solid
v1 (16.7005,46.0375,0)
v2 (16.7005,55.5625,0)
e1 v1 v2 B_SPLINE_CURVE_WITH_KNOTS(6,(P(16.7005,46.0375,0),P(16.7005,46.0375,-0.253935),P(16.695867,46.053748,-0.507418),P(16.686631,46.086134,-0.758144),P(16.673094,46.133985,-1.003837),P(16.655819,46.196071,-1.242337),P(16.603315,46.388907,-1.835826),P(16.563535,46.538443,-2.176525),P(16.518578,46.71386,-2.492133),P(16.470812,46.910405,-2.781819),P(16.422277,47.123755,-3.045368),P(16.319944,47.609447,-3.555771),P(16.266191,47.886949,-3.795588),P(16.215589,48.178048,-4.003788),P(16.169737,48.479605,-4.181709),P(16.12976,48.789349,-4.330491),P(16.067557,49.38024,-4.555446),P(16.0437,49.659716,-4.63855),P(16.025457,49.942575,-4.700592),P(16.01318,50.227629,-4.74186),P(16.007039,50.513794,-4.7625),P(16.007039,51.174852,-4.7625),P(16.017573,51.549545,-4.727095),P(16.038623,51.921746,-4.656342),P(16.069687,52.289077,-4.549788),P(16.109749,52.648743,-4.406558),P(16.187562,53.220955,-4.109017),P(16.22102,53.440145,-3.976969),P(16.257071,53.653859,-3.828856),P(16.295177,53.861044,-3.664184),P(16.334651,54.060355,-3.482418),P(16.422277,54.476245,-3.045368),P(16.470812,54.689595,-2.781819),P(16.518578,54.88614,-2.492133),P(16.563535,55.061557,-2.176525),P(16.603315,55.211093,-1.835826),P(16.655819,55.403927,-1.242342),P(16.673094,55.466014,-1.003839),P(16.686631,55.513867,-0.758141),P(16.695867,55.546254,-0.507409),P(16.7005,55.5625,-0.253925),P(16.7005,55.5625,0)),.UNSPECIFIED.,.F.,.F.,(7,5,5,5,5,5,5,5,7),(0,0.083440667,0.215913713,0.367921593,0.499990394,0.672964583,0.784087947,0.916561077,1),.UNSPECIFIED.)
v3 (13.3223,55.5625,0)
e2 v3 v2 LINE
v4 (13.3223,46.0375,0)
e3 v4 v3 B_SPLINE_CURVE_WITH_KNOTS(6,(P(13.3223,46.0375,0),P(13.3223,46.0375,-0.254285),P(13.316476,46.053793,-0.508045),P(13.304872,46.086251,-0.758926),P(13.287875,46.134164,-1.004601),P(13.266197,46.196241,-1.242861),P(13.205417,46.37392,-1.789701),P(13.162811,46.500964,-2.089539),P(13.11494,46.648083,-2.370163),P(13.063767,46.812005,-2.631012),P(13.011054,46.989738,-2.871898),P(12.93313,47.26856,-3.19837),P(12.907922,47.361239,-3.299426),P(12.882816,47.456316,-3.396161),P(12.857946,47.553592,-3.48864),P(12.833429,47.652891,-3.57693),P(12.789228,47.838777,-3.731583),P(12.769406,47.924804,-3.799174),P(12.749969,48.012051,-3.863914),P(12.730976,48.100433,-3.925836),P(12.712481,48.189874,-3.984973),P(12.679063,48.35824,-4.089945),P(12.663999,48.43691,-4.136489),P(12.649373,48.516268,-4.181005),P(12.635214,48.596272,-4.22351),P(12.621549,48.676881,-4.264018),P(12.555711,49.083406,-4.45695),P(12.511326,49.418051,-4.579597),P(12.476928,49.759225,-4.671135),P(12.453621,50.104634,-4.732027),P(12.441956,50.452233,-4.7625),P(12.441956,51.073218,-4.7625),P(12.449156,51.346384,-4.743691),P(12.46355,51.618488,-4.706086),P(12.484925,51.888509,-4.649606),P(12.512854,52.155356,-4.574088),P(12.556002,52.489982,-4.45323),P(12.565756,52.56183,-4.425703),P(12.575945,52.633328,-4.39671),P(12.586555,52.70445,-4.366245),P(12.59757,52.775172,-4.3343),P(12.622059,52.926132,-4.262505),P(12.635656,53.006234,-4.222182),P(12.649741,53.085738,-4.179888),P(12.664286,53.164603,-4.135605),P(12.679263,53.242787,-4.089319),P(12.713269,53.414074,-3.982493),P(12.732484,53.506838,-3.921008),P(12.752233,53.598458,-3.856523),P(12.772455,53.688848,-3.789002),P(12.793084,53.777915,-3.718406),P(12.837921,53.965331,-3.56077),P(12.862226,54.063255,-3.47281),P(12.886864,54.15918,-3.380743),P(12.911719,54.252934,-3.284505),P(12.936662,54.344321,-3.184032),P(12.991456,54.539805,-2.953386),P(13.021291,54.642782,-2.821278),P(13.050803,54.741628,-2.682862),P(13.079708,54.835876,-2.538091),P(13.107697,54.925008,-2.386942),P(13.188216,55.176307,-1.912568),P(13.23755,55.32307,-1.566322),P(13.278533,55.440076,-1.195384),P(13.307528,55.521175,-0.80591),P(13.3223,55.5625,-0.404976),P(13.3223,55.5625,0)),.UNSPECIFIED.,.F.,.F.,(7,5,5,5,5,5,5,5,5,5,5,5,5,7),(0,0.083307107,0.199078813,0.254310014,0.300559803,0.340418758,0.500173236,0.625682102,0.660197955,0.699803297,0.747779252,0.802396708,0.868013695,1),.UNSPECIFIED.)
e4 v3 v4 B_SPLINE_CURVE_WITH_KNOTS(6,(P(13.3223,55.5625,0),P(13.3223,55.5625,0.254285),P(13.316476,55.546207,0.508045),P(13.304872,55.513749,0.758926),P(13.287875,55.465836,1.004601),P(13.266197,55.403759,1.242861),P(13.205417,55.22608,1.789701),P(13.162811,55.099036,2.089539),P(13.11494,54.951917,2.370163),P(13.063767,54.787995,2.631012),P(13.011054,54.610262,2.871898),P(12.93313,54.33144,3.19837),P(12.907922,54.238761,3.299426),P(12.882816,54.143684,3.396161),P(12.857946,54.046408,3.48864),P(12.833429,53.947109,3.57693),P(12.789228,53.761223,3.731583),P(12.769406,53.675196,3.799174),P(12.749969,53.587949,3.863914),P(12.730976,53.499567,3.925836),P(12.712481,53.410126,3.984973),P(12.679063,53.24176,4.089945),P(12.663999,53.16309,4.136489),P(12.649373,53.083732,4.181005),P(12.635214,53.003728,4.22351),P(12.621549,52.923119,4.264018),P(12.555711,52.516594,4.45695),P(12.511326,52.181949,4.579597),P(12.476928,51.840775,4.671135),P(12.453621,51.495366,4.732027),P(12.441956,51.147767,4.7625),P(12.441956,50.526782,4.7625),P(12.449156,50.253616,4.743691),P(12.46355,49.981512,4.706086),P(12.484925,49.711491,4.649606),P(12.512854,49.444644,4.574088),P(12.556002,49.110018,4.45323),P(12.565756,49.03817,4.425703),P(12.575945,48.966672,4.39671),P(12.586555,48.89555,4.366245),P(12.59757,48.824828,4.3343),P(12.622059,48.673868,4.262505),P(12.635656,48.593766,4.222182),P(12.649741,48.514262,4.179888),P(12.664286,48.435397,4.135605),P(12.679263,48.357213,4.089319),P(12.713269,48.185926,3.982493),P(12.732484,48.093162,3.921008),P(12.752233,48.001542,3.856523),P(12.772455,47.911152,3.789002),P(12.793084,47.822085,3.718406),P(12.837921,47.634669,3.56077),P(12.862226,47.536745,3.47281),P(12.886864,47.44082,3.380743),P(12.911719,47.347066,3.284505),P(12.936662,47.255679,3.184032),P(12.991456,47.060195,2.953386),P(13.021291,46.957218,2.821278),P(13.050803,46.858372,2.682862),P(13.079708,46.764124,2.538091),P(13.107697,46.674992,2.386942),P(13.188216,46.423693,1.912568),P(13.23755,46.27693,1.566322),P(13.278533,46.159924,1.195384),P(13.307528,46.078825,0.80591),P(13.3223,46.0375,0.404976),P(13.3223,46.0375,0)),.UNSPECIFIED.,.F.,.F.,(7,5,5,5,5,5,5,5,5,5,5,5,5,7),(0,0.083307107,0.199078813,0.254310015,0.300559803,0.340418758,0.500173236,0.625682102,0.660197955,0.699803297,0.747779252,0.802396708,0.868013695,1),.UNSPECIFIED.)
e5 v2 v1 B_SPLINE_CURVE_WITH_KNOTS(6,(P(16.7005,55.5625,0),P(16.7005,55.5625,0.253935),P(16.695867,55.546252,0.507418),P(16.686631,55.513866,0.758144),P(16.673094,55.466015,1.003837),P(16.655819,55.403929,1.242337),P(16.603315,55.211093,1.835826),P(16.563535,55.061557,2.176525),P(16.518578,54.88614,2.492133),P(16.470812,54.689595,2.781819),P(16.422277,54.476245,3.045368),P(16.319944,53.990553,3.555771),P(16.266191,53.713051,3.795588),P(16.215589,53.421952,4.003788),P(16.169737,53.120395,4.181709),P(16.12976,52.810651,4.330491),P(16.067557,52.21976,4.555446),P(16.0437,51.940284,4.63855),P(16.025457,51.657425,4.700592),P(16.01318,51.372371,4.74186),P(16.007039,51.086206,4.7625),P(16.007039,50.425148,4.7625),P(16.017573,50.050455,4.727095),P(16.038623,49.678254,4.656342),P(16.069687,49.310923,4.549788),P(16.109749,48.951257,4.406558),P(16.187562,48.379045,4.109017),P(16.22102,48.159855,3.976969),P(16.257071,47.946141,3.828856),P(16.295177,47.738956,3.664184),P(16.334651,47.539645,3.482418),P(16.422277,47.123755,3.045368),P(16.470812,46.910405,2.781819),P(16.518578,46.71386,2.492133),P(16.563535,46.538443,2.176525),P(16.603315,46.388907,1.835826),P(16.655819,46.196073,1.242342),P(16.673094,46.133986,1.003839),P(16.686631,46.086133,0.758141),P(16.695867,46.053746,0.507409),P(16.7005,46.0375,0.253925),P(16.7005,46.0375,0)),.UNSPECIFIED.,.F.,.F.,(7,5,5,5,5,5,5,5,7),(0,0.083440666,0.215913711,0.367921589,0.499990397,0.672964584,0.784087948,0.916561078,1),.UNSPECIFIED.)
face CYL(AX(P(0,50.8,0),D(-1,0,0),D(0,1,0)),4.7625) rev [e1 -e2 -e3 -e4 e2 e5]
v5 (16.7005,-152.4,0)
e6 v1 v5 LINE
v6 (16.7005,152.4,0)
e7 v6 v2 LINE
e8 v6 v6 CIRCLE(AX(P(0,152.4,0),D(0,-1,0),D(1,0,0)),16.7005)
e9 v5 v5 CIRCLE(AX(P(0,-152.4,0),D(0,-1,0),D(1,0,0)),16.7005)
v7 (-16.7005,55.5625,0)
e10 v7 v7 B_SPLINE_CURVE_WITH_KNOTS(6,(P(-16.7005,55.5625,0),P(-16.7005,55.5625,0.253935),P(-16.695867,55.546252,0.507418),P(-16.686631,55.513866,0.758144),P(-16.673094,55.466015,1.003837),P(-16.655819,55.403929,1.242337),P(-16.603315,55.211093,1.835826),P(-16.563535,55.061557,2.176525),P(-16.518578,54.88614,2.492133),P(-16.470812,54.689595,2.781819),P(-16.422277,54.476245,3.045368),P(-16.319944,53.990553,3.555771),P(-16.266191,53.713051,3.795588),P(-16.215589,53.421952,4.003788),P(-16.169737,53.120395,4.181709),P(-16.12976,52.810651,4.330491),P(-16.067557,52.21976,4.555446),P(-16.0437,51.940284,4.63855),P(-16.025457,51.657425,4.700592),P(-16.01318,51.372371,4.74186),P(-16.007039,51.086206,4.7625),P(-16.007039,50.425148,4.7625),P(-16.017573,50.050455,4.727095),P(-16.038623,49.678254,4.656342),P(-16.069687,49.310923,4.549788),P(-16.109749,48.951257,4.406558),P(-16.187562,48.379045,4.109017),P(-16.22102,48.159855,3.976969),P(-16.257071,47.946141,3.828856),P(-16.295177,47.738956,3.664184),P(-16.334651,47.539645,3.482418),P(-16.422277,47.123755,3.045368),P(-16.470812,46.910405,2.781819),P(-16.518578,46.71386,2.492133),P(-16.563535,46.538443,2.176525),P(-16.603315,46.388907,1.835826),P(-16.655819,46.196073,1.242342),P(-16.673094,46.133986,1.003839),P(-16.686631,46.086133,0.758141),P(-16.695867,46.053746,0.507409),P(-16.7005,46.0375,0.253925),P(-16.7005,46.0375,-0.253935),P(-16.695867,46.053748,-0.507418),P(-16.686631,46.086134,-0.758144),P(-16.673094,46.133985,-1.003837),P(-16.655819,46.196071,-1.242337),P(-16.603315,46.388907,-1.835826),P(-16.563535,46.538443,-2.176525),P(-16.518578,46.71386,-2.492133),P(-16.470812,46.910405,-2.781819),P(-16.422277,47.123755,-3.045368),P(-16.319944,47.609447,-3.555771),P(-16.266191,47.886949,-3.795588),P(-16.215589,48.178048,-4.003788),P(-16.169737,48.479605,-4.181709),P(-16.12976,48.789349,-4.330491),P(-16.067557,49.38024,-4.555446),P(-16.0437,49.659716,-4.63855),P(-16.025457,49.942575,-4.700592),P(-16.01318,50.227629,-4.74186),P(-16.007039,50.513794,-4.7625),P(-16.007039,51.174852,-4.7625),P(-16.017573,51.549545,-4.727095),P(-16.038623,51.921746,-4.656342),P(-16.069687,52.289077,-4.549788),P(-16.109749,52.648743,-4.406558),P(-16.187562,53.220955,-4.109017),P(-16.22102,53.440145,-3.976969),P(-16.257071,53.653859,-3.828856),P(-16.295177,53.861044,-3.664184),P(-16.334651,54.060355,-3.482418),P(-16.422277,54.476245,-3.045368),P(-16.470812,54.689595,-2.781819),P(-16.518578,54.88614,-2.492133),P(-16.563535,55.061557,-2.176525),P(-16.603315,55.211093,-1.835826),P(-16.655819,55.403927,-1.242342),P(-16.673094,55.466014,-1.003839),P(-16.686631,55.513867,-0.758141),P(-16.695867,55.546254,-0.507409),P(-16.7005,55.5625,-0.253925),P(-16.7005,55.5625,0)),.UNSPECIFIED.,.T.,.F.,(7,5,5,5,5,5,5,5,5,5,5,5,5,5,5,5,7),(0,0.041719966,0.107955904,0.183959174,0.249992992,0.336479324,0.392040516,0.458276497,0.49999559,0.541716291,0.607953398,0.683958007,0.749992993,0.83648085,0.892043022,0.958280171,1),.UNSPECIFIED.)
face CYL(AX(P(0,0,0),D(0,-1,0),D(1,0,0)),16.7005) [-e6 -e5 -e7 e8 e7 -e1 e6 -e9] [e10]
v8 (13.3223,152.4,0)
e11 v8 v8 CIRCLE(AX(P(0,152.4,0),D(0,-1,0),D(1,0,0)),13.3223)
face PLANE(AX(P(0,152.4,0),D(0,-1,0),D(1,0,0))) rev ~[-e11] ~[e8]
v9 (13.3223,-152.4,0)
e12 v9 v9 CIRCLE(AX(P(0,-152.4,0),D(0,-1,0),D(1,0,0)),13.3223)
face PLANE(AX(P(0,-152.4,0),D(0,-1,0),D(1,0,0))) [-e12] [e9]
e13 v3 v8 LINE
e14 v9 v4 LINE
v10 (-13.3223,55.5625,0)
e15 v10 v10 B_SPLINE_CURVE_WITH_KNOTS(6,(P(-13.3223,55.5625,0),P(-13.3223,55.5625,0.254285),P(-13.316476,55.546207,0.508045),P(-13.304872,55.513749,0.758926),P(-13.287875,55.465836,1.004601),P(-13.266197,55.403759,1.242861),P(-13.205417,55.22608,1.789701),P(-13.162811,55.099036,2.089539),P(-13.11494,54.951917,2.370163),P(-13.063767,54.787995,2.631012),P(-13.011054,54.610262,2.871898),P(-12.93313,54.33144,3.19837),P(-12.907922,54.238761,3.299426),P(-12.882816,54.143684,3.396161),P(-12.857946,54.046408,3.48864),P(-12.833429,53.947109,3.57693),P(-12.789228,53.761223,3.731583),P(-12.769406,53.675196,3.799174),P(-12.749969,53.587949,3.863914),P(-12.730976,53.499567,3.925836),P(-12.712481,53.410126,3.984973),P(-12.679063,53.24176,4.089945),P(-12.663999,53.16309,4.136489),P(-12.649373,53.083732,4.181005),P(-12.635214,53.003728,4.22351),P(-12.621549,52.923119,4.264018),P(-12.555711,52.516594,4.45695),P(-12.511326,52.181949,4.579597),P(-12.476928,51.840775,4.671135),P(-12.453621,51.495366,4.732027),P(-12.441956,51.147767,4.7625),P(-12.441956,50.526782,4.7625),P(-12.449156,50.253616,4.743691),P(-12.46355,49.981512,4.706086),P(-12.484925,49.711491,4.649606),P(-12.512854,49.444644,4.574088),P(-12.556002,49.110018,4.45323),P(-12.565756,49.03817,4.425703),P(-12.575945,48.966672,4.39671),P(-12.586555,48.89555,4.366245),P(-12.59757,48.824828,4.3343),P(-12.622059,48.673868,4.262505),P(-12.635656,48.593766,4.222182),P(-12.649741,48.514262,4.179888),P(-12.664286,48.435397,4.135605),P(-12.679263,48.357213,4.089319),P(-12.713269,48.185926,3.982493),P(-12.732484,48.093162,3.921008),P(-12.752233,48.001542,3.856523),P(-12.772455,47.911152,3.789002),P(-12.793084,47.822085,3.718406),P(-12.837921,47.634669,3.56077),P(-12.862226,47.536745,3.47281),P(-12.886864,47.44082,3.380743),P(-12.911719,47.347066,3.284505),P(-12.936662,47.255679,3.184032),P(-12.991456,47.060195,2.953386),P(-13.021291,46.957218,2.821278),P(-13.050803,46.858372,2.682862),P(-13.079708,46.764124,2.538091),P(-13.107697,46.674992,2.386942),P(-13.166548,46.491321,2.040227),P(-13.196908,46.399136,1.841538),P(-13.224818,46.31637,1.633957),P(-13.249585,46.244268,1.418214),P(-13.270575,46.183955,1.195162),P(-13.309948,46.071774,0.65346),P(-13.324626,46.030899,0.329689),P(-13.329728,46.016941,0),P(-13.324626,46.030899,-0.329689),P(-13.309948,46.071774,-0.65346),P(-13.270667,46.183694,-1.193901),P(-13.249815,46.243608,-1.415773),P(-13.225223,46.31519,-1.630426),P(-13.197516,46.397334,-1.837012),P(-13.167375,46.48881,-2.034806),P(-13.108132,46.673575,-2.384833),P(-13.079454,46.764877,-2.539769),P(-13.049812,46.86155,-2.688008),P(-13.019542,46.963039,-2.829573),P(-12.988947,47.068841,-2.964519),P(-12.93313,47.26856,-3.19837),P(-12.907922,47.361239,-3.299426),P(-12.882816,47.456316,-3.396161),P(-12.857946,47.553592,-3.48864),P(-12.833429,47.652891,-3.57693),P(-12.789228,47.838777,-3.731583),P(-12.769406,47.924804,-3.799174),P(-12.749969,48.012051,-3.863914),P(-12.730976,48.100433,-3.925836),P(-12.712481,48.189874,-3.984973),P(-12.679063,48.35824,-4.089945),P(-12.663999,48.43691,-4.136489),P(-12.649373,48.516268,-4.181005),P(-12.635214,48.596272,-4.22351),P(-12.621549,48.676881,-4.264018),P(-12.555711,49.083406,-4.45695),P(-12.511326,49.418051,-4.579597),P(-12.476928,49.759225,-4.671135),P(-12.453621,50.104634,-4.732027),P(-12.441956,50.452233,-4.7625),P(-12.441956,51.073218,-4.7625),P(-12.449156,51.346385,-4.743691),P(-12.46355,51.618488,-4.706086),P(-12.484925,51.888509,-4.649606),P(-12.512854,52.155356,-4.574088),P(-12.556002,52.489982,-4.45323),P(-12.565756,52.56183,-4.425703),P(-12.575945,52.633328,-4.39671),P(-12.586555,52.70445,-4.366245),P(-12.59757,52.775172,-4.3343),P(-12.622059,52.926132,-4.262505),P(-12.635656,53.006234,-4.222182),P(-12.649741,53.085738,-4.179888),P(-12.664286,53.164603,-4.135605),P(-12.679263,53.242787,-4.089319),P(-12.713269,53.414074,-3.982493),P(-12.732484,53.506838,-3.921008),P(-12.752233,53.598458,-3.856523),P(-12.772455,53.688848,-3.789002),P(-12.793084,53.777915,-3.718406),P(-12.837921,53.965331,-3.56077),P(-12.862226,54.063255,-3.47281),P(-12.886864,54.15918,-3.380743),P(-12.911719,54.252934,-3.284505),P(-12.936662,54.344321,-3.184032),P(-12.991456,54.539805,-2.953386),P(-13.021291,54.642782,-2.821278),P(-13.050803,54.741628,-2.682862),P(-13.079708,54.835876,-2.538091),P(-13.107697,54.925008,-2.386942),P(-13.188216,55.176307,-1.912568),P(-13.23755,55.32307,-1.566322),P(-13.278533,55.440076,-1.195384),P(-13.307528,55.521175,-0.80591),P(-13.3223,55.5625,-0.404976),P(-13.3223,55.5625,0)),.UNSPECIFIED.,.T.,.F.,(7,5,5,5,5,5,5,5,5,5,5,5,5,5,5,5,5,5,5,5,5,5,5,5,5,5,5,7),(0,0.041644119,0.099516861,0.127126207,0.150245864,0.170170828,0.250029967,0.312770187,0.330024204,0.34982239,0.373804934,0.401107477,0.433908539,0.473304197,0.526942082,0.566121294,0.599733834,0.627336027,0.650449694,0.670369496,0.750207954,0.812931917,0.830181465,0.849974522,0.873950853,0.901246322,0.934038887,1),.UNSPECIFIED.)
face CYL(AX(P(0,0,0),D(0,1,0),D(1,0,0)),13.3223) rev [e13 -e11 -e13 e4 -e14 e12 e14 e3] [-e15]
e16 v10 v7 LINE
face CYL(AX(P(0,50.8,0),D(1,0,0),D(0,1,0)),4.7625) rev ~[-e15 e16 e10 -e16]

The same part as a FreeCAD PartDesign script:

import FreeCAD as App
import Part
import Sketcher

V = App.Vector
Q = App.Units.Quantity

doc = App.newDocument("Part")
body = doc.addObject("PartDesign::Body", "Body")

# Sketch on XZ plane
sketch1 = body.newObject("Sketcher::SketchObject", "Sketch")
sketch1.AttachmentSupport = (doc.getObject("XZ_Plane"), [""])
sketch1.MapMode = "FlatFace"
sketch1.addGeometry(Part.Circle(V(0, 0, 0), V(0, 0, 1), 17), False)
sketch1.addGeometry(Part.Circle(V(0, 0, 0), V(0, 0, 1), 13), False)
sketch1.addConstraint(Sketcher.Constraint("Coincident", 0, 3, -1, 1))
sketch1.addConstraint(Sketcher.Constraint("Coincident", 1, 3, -1, 1))
sketch1.addConstraint(Sketcher.Constraint("Diameter", 0, Q("1.315 in")))
sketch1.addConstraint(Sketcher.Constraint("Diameter", 1, Q("1.049 in")))
pad1 = body.newObject("PartDesign::Pad", "Pad")
pad1.Profile = sketch1
pad1.Length = Q("12 in")
pad1.Midplane = True

# Sketch on YZ plane
sketch2 = body.newObject("Sketcher::SketchObject", "Sketch001")
sketch2.AttachmentSupport = (doc.getObject("YZ_Plane"), [""])
sketch2.MapMode = "FlatFace"
sketch2.addGeometry(Part.Circle(V(50.8, 0, 0), V(0, 0, 1), 4.8), False)
sketch2.addConstraint(Sketcher.Constraint("PointOnObject", 0, 3, -1))
sketch2.addConstraint(Sketcher.Constraint("Diameter", 0, Q("0.375 in")))
sketch2.addConstraint(Sketcher.Constraint("DistanceX", -1, 1, 0, 3, Q("2 in")))
pocket1 = body.newObject("PartDesign::Pocket", "Pocket")
pocket1.Profile = sketch2
pocket1.Type = "ThroughAll"
pocket1.Midplane = True

doc.recompute()
